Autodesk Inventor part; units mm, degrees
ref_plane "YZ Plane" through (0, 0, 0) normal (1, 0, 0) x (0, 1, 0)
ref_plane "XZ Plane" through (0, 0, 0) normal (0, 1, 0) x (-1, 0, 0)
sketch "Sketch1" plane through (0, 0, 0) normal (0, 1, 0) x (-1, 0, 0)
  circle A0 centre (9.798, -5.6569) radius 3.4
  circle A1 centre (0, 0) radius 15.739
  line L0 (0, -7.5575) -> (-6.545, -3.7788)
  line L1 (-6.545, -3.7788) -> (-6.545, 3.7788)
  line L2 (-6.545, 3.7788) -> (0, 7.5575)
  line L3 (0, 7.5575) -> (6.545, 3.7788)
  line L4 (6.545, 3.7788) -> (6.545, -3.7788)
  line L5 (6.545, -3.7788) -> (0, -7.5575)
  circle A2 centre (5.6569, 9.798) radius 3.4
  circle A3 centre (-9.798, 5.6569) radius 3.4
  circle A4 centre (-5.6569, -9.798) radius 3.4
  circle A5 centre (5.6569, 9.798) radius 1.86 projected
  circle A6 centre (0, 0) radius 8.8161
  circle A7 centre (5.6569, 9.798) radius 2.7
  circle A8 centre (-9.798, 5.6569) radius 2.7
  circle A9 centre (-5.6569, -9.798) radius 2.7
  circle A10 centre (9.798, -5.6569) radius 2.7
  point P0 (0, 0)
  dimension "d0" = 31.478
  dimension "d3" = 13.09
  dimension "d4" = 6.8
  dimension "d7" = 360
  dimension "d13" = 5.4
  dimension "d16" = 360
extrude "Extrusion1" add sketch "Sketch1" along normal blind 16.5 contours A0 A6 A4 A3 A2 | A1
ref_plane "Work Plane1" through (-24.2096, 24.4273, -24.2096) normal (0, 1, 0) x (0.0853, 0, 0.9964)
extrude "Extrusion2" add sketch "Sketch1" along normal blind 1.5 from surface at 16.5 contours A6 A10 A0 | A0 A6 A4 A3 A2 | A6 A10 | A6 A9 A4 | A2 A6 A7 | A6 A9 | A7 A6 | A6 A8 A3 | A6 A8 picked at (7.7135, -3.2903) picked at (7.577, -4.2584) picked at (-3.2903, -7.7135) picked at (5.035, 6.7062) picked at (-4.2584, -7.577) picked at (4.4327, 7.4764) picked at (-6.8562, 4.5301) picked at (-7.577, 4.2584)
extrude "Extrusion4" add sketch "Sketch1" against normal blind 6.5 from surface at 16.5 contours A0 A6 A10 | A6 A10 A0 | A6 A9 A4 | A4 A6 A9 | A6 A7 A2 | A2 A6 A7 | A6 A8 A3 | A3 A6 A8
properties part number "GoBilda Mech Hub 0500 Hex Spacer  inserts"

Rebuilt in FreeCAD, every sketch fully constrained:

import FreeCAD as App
import Part
import Sketcher
Q = App.Units.Quantity


def add_polygon(sketch, points):
    """Adds a closed chain of lines whose ends are joined by coincident constraints."""
    first, n = sketch.GeometryCount, len(points)
    for a, b in zip(points, points[1:] + points[:1]):
        sketch.addGeometry(Part.LineSegment(App.Vector(*a, 0), App.Vector(*b, 0)), False)
    for i in range(n):
        sketch.addConstraint(Sketcher.Constraint("Coincident", first + i, 2, first + (i + 1) % n, 1))

doc = App.newDocument("Part")
body = doc.addObject("PartDesign::Body", "Body")

# Sketch on XZ plane
sketch1 = body.newObject("Sketcher::SketchObject", "Sketch")
sketch1.AttachmentSupport = (doc.getObject("XZ_Plane"), [""])
sketch1.MapMode = "FlatFace"
sketch1.addGeometry(Part.Circle(App.Vector(0, 0, 0), App.Vector(0, 0, 1), 15.7), False)  # 0
sketch1.addGeometry(Part.Circle(App.Vector(-9.8, -5.7, 0), App.Vector(0, 0, 1), 3.4), False)  # 1
sketch1.addGeometry(Part.Circle(App.Vector(5.7, -9.8, 0), App.Vector(0, 0, 1), 3.4), False)  # 2
sketch1.addGeometry(Part.Circle(App.Vector(9.8, 5.7, 0), App.Vector(0, 0, 1), 3.4), False)  # 3
sketch1.addGeometry(Part.Circle(App.Vector(-5.7, 9.8, 0), App.Vector(0, 0, 1), 3.4), False)  # 4
add_polygon(sketch1, [(-6.5, -3.8), (0, -7.6), (6.5, -3.8), (6.5, 3.8), (0, 7.6), (-6.5, 3.8)])  # lines 5-10
sketch1.addConstraint([
    Sketcher.Constraint("Vertical", 7),
    Sketcher.Constraint("Vertical", 10),
    Sketcher.Constraint("Coincident", 0, 3, -1, 1),
    Sketcher.Constraint("Equal", 1, 2),
    Sketcher.Constraint("Equal", 2, 3),
    Sketcher.Constraint("Equal", 3, 4),
    Sketcher.Constraint("Symmetric", 1, 3, 3, 3, -1, 1),
    Sketcher.Constraint("Symmetric", 2, 3, 4, 3, -1, 1),
    Sketcher.Constraint("Symmetric", 5, 2, 8, 2, -1, 1),
    Sketcher.Constraint("Symmetric", 6, 2, 9, 2, -1, 1),
    Sketcher.Constraint("PointOnObject", 5, 2, -2),
    Sketcher.Constraint("Parallel", 5, 8),
    Sketcher.Constraint("Horizontal", 7, 2, 9, 2),
    Sketcher.Constraint("Diameter", 1, Q("6.8 mm")),
    Sketcher.Constraint("Diameter", 0, Q("31.478 mm")),
    Sketcher.Constraint("Angle", 5, Q("-29.9996 deg")),
    Sketcher.Constraint("DistanceX", 9, 2, 7, 2, Q("13.09 mm")),
    Sketcher.Constraint("DistanceY", 7, 1, 7, 2, Q("7.5576 mm")),
    Sketcher.Constraint("DistanceX", 1, 3, -1, 1, Q("9.798 mm")),
    Sketcher.Constraint("DistanceY", 1, 3, -1, 1, Q("5.657 mm")),
    Sketcher.Constraint("DistanceX", -1, 1, 2, 3, Q("5.657 mm")),
    Sketcher.Constraint("DistanceY", 2, 3, -1, 1, Q("9.798 mm")),
])
pad1 = body.newObject("PartDesign::Pad", "Pad")
pad1.Profile = sketch1
pad1.Length = 16.5
pad1.Reversed = True

# Sketch on XZ plane
sketch2 = body.newObject("Sketcher::SketchObject", "Sketch001")
sketch2.AttachmentSupport = (doc.getObject("XZ_Plane"), [""])
sketch2.MapMode = "FlatFace"
sketch2.AttachmentOffset = App.Placement(App.Vector(0, 0, -16.5), App.Rotation())
sketch2.addGeometry(Part.Circle(App.Vector(0, 0, 0), App.Vector(0, 0, 1), 9), False)  # 0
add_polygon(sketch2, [(0, -8), (7, -4), (7, 4), (0, 8), (-7, 4), (-7, -4)])  # lines 1-6
sketch2.addConstraint([
    Sketcher.Constraint("Vertical", 2),
    Sketcher.Constraint("Vertical", 5),
    Sketcher.Constraint("Coincident", 0, 3, -1, 1),
    Sketcher.Constraint("Symmetric", 1, 2, 4, 2, -1, 1),
    Sketcher.Constraint("Symmetric", 3, 2, 6, 2, -1, 1),
    Sketcher.Constraint("PointOnObject", 3, 2, -2),
    Sketcher.Constraint("Parallel", 3, 6),
    Sketcher.Constraint("Horizontal", 2, 2, 4, 2),
    Sketcher.Constraint("Angle", 1, Q("29.9996 deg")),
    Sketcher.Constraint("DistanceX", 4, 2, 2, 2, Q("13.09 mm")),
    Sketcher.Constraint("Diameter", 0, Q("17.6322 mm")),
    Sketcher.Constraint("DistanceY", 2, 1, 2, 2, Q("7.5576 mm")),
])
pad2 = body.newObject("PartDesign::Pad", "Pad001")
pad2.Profile = sketch2
pad2.Length = 1.5
pad2.Reversed = True

# Sketch on XZ plane
sketch3 = body.newObject("Sketcher::SketchObject", "Sketch002")
sketch3.AttachmentSupport = (doc.getObject("XZ_Plane"), [""])
sketch3.MapMode = "FlatFace"
sketch3.AttachmentOffset = App.Placement(App.Vector(0, 0, -16.5), App.Rotation())
sketch3.addGeometry([
    Part.Circle(App.Vector(-9.8, -5.7, 0), App.Vector(0, 0, 1), 3.4),  # 0
    Part.Circle(App.Vector(-9.8, -5.7, 0), App.Vector(0, 0, 1), 2.7),  # 1
    Part.Circle(App.Vector(5.7, -9.8, 0), App.Vector(0, 0, 1), 3.4),  # 2
    Part.Circle(App.Vector(5.7, -9.8, 0), App.Vector(0, 0, 1), 2.7),  # 3
    Part.Circle(App.Vector(-5.7, 9.8, 0), App.Vector(0, 0, 1), 3.4),  # 4
    Part.Circle(App.Vector(-5.7, 9.8, 0), App.Vector(0, 0, 1), 2.7),  # 5
    Part.Circle(App.Vector(9.8, 5.7, 0), App.Vector(0, 0, 1), 3.4),  # 6
    Part.Circle(App.Vector(9.8, 5.7, 0), App.Vector(0, 0, 1), 2.7),  # 7
], False)
sketch3.addConstraint([
    Sketcher.Constraint("Coincident", 1, 3, 0, 3),
    Sketcher.Constraint("Coincident", 3, 3, 2, 3),
    Sketcher.Constraint("Coincident", 5, 3, 4, 3),
    Sketcher.Constraint("Coincident", 7, 3, 6, 3),
    Sketcher.Constraint("Equal", 0, 2),
    Sketcher.Constraint("Equal", 1, 3),
    Sketcher.Constraint("Equal", 2, 4),
    Sketcher.Constraint("Equal", 3, 5),
    Sketcher.Constraint("Equal", 4, 6),
    Sketcher.Constraint("Equal", 5, 7),
    Sketcher.Constraint("Symmetric", 2, 3, 4, 3, -1, 1),
    Sketcher.Constraint("Symmetric", 0, 3, 6, 3, -1, 1),
    Sketcher.Constraint("Diameter", 0, Q("6.8 mm")),
    Sketcher.Constraint("Diameter", 1, Q("5.4 mm")),
    Sketcher.Constraint("DistanceX", 0, 3, -1, 1, Q("9.798 mm")),
    Sketcher.Constraint("DistanceY", 0, 3, -1, 1, Q("5.657 mm")),
    Sketcher.Constraint("DistanceX", -1, 1, 2, 3, Q("5.657 mm")),
    Sketcher.Constraint("DistanceY", 2, 3, -1, 1, Q("9.798 mm")),
])
pad3 = body.newObject("PartDesign::Pad", "Pad002")
pad3.Profile = sketch3
pad3.Length = 6.5

doc.recompute()
